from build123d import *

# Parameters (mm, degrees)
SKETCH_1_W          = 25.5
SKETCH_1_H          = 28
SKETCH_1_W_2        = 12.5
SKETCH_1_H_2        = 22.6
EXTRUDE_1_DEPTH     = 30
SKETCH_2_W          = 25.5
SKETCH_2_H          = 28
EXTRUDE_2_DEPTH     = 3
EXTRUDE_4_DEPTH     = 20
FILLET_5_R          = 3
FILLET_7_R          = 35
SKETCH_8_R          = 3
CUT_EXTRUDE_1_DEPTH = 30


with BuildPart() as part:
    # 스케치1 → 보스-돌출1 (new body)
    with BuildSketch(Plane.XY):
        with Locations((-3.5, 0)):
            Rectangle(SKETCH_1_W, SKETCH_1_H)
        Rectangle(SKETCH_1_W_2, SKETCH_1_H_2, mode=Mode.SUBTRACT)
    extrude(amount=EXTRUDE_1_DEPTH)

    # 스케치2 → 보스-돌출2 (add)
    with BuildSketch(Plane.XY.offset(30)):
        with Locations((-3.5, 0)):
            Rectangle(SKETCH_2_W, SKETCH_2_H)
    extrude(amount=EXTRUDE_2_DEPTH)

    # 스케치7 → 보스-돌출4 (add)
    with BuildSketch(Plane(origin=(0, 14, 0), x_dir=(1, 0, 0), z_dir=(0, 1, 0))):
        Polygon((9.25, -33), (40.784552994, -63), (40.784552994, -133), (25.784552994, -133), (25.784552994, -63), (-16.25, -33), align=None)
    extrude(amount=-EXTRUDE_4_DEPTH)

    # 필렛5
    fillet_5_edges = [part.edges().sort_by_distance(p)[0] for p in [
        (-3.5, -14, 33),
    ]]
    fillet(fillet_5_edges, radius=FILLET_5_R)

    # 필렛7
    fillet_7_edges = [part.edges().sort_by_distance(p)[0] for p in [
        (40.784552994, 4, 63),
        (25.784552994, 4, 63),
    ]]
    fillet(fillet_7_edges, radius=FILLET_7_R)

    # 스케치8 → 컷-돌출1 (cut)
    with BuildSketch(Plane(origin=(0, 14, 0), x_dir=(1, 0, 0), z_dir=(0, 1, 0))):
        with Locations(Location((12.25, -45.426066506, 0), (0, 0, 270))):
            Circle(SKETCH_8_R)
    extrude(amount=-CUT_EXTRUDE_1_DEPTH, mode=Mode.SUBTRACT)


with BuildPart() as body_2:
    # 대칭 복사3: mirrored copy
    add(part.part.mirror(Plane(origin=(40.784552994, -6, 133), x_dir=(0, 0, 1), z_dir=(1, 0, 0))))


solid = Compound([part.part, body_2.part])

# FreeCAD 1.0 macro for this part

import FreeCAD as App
import Part
import Sketcher
from FreeCAD import Vector
Q = App.Units.Quantity


def edges_at(feature, points):
    """Names of the edges that pass closest to the given points."""
    edges = feature.Shape.Edges
    near = lambda p: min(range(len(edges)), key=lambda i: edges[i].distToShape(Part.Vertex(*p))[0])
    return sorted({f"Edge{near(p) + 1}" for p in points})

doc = App.newDocument("Part")
params = doc.addObject("Spreadsheet::Sheet", "Params")
for row, (alias, value) in enumerate([
    ("sketch1_height", "28 mm"),
    ("sketch1_width", "25.5 mm"),
    ("sketch1_width2", "12.5 mm"),
    ("sketch1_height2", "22.6 mm"),
    ("pad1_length", "30 mm"),
    ("sketch2_height", "28 mm"),
    ("sketch2_width", "25.5 mm"),
    ("pad2_length", "3 mm"),
    ("sketch3_width", "15 mm"),
    ("sketch3_height", "70 mm"),
    ("sketch3_width2", "25.5 mm"),
    ("pad3_length", "20 mm"),
    ("fillet_radius", "3 mm"),
    ("fillet2_radius", "35 mm"),
    ("sketch4_diameter", "6 mm"),
    ("pocket1_length", "30 mm"),
], start=1):
    params.set(f"A{row}", alias)
    params.set(f"B{row}", "=" + value)
    params.setAlias(f"B{row}", alias)

body = doc.addObject("PartDesign::Body", "Body")

sketch1 = body.newObject("Sketcher::SketchObject", "Sketch")
sketch1.AttachmentSupport = (doc.getObject("XY_Plane"), [""])
sketch1.MapMode = "FlatFace"
sketch1.addGeometry(Part.LineSegment(Vector(-16.25, 14, 0), Vector(-16.25, -14, 0)), False)
sketch1.addGeometry(Part.LineSegment(Vector(-16.25, -14, 0), Vector(9.25, -14, 0)), False)
sketch1.addGeometry(Part.LineSegment(Vector(9.25, -14, 0), Vector(9.25, 14, 0)), False)
sketch1.addGeometry(Part.LineSegment(Vector(9.25, 14, 0), Vector(-16.25, 14, 0)), False)
sketch1.addGeometry(Part.LineSegment(Vector(6.25, -11.3, 0), Vector(-6.25, -11.3, 0)), False)
sketch1.addGeometry(Part.LineSegment(Vector(-6.25, -11.3, 0), Vector(-6.25, 11.3, 0)), False)
sketch1.addGeometry(Part.LineSegment(Vector(-6.25, 11.3, 0), Vector(6.25, 11.3, 0)), False)
sketch1.addGeometry(Part.LineSegment(Vector(6.25, 11.3, 0), Vector(6.25, -11.3, 0)), False)
sketch1.addConstraint(Sketcher.Constraint("Coincident", 0, 2, 1, 1))
sketch1.addConstraint(Sketcher.Constraint("Coincident", 1, 2, 2, 1))
sketch1.addConstraint(Sketcher.Constraint("Coincident", 2, 2, 3, 1))
sketch1.addConstraint(Sketcher.Constraint("Coincident", 3, 2, 0, 1))
sketch1.addConstraint(Sketcher.Constraint("Coincident", 4, 2, 5, 1))
sketch1.addConstraint(Sketcher.Constraint("Coincident", 5, 2, 6, 1))
sketch1.addConstraint(Sketcher.Constraint("Coincident", 6, 2, 7, 1))
sketch1.addConstraint(Sketcher.Constraint("Coincident", 7, 2, 4, 1))
sketch1.addConstraint(Sketcher.Constraint("Vertical", 0))
sketch1.addConstraint(Sketcher.Constraint("Horizontal", 1))
sketch1.addConstraint(Sketcher.Constraint("Vertical", 2))
sketch1.addConstraint(Sketcher.Constraint("Horizontal", 3))
sketch1.addConstraint(Sketcher.Constraint("Horizontal", 4))
sketch1.addConstraint(Sketcher.Constraint("Vertical", 5))
sketch1.addConstraint(Sketcher.Constraint("Horizontal", 6))
sketch1.addConstraint(Sketcher.Constraint("Vertical", 7))
sketch1.addConstraint(Sketcher.Constraint("Symmetric", 4, 2, 6, 2, -1, 1))
sketch1.addConstraint(Sketcher.Constraint("DistanceY", 0, 2, 0, 1, Q("28 mm")))
sketch1.addConstraint(Sketcher.Constraint("DistanceX", 1, 1, 1, 2, Q("25.5 mm")))
sketch1.addConstraint(Sketcher.Constraint("DistanceX", 4, 2, 4, 1, Q("12.5 mm")))
sketch1.addConstraint(Sketcher.Constraint("DistanceY", 5, 1, 5, 2, Q("22.6 mm")))
sketch1.addConstraint(Sketcher.Constraint("DistanceY", 0, 2, -1, 1, Q("14 mm")))
sketch1.addConstraint(Sketcher.Constraint("DistanceX", 0, 2, 4, 2, Q("10 mm")))
sketch1.setExpression("Constraints[17]", "Params.sketch1_height")
sketch1.setExpression("Constraints[18]", "Params.sketch1_width")
sketch1.setExpression("Constraints[19]", "Params.sketch1_width2")
sketch1.setExpression("Constraints[20]", "Params.sketch1_height2")
pad1 = body.newObject("PartDesign::Pad", "Pad")
pad1.Profile = sketch1
pad1.setExpression("Length", "Params.pad1_length")

sketch2 = body.newObject("Sketcher::SketchObject", "Sketch001")
sketch2.AttachmentSupport = (doc.getObject("XY_Plane"), [""])
sketch2.MapMode = "FlatFace"
sketch2.AttachmentOffset = App.Placement(Vector(0, 0, 30), App.Rotation())
sketch2.addGeometry(Part.LineSegment(Vector(-16.25, 14, 0), Vector(-16.25, -14, 0)), False)
sketch2.addGeometry(Part.LineSegment(Vector(-16.25, -14, 0), Vector(9.25, -14, 0)), False)
sketch2.addGeometry(Part.LineSegment(Vector(9.25, -14, 0), Vector(9.25, 14, 0)), False)
sketch2.addGeometry(Part.LineSegment(Vector(9.25, 14, 0), Vector(-16.25, 14, 0)), False)
sketch2.addConstraint(Sketcher.Constraint("Coincident", 0, 2, 1, 1))
sketch2.addConstraint(Sketcher.Constraint("Coincident", 1, 2, 2, 1))
sketch2.addConstraint(Sketcher.Constraint("Coincident", 2, 2, 3, 1))
sketch2.addConstraint(Sketcher.Constraint("Coincident", 3, 2, 0, 1))
sketch2.addConstraint(Sketcher.Constraint("Vertical", 0))
sketch2.addConstraint(Sketcher.Constraint("Horizontal", 1))
sketch2.addConstraint(Sketcher.Constraint("Vertical", 2))
sketch2.addConstraint(Sketcher.Constraint("Horizontal", 3))
sketch2.addConstraint(Sketcher.Constraint("DistanceY", 0, 2, 0, 1, Q("28 mm")))
sketch2.addConstraint(Sketcher.Constraint("DistanceX", 1, 1, 1, 2, Q("25.5 mm")))
sketch2.addConstraint(Sketcher.Constraint("DistanceY", 0, 2, -1, 1, Q("14 mm")))
sketch2.addConstraint(Sketcher.Constraint("DistanceX", 0, 2, -1, 1, Q("16.25 mm")))
sketch2.setExpression("Constraints[8]", "Params.sketch2_height")
sketch2.setExpression("Constraints[9]", "Params.sketch2_width")
pad2 = body.newObject("PartDesign::Pad", "Pad001")
pad2.Profile = sketch2
pad2.setExpression("Length", "Params.pad2_length")

sketch3 = body.newObject("Sketcher::SketchObject", "Sketch002")
sketch3.AttachmentSupport = (doc.getObject("XZ_Plane"), [""])
sketch3.MapMode = "FlatFace"
sketch3.AttachmentOffset = App.Placement(Vector(0, 0, -14), App.Rotation())
sketch3.addGeometry(Part.LineSegment(Vector(40.784553, 63, 0), Vector(9.25, 33, 0)), False)
sketch3.addGeometry(Part.LineSegment(Vector(9.25, 33, 0), Vector(-16.25, 33, 0)), False)
sketch3.addGeometry(Part.LineSegment(Vector(-16.25, 33, 0), Vector(25.784553, 63, 0)), False)
sketch3.addGeometry(Part.LineSegment(Vector(25.784553, 63, 0), Vector(25.784553, 133, 0)), False)
sketch3.addGeometry(Part.LineSegment(Vector(25.784553, 133, 0), Vector(40.784553, 133, 0)), False)
sketch3.addGeometry(Part.LineSegment(Vector(40.784553, 133, 0), Vector(40.784553, 63, 0)), False)
sketch3.addConstraint(Sketcher.Constraint("Coincident", 0, 2, 1, 1))
sketch3.addConstraint(Sketcher.Constraint("Coincident", 1, 2, 2, 1))
sketch3.addConstraint(Sketcher.Constraint("Coincident", 2, 2, 3, 1))
sketch3.addConstraint(Sketcher.Constraint("Coincident", 3, 2, 4, 1))
sketch3.addConstraint(Sketcher.Constraint("Coincident", 4, 2, 5, 1))
sketch3.addConstraint(Sketcher.Constraint("Coincident", 5, 2, 0, 1))
sketch3.addConstraint(Sketcher.Constraint("Horizontal", 1))
sketch3.addConstraint(Sketcher.Constraint("Vertical", 3))
sketch3.addConstraint(Sketcher.Constraint("Horizontal", 4))
sketch3.addConstraint(Sketcher.Constraint("Vertical", 5))
sketch3.addConstraint(Sketcher.Constraint("Horizontal", 2, 2, 5, 2))
sketch3.addConstraint(Sketcher.Constraint("DistanceX", 4, 1, 4, 2, Q("15 mm")))
sketch3.addConstraint(Sketcher.Constraint("DistanceY", 3, 1, 3, 2, Q("70 mm")))
sketch3.addConstraint(Sketcher.Constraint("DistanceX", 1, 2, 1, 1, Q("25.5 mm")))
sketch3.addConstraint(Sketcher.Constraint("DistanceY", -1, 1, 0, 2, Q("33 mm")))
sketch3.addConstraint(Sketcher.Constraint("DistanceY", -1, 1, 2, 2, Q("63 mm")))
sketch3.addConstraint(Sketcher.Constraint("DistanceX", -1, 1, 0, 2, Q("9.25 mm")))
sketch3.addConstraint(Sketcher.Constraint("Distance", 0, Q("43.525028 mm")))
sketch3.setExpression("Constraints[11]", "Params.sketch3_width")
sketch3.setExpression("Constraints[12]", "Params.sketch3_height")
sketch3.setExpression("Constraints[13]", "Params.sketch3_width2")
pad3 = body.newObject("PartDesign::Pad", "Pad002")
pad3.Profile = sketch3
pad3.setExpression("Length", "Params.pad3_length")
doc.recompute()

fillet = body.newObject("PartDesign::Fillet", "Fillet")
fillet.Base = (pad3, edges_at(pad3, [(-3.5, -14, 33)]))
fillet.setExpression("Radius", "Params.fillet_radius")
doc.recompute()

fillet2 = body.newObject("PartDesign::Fillet", "Fillet001")
fillet2.Base = (fillet, edges_at(fillet, [(40.785, 4, 63), (25.785, 4, 63)]))
fillet2.setExpression("Radius", "Params.fillet2_radius")

sketch4 = body.newObject("Sketcher::SketchObject", "Sketch003")
sketch4.AttachmentSupport = (doc.getObject("XZ_Plane"), [""])
sketch4.MapMode = "FlatFace"
sketch4.AttachmentOffset = App.Placement(Vector(0, 0, -14), App.Rotation())
sketch4.addGeometry(Part.Circle(Vector(12.25, 45.426067, 0), Vector(0, 0, 1), 3), False)
sketch4.addConstraint(Sketcher.Constraint("Diameter", 0, Q("6 mm")))
sketch4.addConstraint(Sketcher.Constraint("DistanceX", -1, 1, 0, 3, Q("12.25 mm")))
sketch4.addConstraint(Sketcher.Constraint("DistanceY", -1, 1, 0, 3, Q("45.426067 mm")))
sketch4.setExpression("Constraints[0]", "Params.sketch4_diameter")
pocket1 = body.newObject("PartDesign::Pocket", "Pocket")
pocket1.Profile = sketch4
pocket1.setExpression("Length", "Params.pocket1_length")
pocket1.Reversed = True
body2 = doc.addObject("PartDesign::Body", "Body001")
doc.recompute()

mirroring = doc.addObject("Part::Mirroring", "Mirroring")
mirroring.Source = body
mirroring.Base = Vector(40.784553, -6, 133)
mirroring.Normal = Vector(1, 0, 0)
body2.BaseFeature = mirroring
doc.recompute()
mirroring.Visibility = False

doc.recompute()
